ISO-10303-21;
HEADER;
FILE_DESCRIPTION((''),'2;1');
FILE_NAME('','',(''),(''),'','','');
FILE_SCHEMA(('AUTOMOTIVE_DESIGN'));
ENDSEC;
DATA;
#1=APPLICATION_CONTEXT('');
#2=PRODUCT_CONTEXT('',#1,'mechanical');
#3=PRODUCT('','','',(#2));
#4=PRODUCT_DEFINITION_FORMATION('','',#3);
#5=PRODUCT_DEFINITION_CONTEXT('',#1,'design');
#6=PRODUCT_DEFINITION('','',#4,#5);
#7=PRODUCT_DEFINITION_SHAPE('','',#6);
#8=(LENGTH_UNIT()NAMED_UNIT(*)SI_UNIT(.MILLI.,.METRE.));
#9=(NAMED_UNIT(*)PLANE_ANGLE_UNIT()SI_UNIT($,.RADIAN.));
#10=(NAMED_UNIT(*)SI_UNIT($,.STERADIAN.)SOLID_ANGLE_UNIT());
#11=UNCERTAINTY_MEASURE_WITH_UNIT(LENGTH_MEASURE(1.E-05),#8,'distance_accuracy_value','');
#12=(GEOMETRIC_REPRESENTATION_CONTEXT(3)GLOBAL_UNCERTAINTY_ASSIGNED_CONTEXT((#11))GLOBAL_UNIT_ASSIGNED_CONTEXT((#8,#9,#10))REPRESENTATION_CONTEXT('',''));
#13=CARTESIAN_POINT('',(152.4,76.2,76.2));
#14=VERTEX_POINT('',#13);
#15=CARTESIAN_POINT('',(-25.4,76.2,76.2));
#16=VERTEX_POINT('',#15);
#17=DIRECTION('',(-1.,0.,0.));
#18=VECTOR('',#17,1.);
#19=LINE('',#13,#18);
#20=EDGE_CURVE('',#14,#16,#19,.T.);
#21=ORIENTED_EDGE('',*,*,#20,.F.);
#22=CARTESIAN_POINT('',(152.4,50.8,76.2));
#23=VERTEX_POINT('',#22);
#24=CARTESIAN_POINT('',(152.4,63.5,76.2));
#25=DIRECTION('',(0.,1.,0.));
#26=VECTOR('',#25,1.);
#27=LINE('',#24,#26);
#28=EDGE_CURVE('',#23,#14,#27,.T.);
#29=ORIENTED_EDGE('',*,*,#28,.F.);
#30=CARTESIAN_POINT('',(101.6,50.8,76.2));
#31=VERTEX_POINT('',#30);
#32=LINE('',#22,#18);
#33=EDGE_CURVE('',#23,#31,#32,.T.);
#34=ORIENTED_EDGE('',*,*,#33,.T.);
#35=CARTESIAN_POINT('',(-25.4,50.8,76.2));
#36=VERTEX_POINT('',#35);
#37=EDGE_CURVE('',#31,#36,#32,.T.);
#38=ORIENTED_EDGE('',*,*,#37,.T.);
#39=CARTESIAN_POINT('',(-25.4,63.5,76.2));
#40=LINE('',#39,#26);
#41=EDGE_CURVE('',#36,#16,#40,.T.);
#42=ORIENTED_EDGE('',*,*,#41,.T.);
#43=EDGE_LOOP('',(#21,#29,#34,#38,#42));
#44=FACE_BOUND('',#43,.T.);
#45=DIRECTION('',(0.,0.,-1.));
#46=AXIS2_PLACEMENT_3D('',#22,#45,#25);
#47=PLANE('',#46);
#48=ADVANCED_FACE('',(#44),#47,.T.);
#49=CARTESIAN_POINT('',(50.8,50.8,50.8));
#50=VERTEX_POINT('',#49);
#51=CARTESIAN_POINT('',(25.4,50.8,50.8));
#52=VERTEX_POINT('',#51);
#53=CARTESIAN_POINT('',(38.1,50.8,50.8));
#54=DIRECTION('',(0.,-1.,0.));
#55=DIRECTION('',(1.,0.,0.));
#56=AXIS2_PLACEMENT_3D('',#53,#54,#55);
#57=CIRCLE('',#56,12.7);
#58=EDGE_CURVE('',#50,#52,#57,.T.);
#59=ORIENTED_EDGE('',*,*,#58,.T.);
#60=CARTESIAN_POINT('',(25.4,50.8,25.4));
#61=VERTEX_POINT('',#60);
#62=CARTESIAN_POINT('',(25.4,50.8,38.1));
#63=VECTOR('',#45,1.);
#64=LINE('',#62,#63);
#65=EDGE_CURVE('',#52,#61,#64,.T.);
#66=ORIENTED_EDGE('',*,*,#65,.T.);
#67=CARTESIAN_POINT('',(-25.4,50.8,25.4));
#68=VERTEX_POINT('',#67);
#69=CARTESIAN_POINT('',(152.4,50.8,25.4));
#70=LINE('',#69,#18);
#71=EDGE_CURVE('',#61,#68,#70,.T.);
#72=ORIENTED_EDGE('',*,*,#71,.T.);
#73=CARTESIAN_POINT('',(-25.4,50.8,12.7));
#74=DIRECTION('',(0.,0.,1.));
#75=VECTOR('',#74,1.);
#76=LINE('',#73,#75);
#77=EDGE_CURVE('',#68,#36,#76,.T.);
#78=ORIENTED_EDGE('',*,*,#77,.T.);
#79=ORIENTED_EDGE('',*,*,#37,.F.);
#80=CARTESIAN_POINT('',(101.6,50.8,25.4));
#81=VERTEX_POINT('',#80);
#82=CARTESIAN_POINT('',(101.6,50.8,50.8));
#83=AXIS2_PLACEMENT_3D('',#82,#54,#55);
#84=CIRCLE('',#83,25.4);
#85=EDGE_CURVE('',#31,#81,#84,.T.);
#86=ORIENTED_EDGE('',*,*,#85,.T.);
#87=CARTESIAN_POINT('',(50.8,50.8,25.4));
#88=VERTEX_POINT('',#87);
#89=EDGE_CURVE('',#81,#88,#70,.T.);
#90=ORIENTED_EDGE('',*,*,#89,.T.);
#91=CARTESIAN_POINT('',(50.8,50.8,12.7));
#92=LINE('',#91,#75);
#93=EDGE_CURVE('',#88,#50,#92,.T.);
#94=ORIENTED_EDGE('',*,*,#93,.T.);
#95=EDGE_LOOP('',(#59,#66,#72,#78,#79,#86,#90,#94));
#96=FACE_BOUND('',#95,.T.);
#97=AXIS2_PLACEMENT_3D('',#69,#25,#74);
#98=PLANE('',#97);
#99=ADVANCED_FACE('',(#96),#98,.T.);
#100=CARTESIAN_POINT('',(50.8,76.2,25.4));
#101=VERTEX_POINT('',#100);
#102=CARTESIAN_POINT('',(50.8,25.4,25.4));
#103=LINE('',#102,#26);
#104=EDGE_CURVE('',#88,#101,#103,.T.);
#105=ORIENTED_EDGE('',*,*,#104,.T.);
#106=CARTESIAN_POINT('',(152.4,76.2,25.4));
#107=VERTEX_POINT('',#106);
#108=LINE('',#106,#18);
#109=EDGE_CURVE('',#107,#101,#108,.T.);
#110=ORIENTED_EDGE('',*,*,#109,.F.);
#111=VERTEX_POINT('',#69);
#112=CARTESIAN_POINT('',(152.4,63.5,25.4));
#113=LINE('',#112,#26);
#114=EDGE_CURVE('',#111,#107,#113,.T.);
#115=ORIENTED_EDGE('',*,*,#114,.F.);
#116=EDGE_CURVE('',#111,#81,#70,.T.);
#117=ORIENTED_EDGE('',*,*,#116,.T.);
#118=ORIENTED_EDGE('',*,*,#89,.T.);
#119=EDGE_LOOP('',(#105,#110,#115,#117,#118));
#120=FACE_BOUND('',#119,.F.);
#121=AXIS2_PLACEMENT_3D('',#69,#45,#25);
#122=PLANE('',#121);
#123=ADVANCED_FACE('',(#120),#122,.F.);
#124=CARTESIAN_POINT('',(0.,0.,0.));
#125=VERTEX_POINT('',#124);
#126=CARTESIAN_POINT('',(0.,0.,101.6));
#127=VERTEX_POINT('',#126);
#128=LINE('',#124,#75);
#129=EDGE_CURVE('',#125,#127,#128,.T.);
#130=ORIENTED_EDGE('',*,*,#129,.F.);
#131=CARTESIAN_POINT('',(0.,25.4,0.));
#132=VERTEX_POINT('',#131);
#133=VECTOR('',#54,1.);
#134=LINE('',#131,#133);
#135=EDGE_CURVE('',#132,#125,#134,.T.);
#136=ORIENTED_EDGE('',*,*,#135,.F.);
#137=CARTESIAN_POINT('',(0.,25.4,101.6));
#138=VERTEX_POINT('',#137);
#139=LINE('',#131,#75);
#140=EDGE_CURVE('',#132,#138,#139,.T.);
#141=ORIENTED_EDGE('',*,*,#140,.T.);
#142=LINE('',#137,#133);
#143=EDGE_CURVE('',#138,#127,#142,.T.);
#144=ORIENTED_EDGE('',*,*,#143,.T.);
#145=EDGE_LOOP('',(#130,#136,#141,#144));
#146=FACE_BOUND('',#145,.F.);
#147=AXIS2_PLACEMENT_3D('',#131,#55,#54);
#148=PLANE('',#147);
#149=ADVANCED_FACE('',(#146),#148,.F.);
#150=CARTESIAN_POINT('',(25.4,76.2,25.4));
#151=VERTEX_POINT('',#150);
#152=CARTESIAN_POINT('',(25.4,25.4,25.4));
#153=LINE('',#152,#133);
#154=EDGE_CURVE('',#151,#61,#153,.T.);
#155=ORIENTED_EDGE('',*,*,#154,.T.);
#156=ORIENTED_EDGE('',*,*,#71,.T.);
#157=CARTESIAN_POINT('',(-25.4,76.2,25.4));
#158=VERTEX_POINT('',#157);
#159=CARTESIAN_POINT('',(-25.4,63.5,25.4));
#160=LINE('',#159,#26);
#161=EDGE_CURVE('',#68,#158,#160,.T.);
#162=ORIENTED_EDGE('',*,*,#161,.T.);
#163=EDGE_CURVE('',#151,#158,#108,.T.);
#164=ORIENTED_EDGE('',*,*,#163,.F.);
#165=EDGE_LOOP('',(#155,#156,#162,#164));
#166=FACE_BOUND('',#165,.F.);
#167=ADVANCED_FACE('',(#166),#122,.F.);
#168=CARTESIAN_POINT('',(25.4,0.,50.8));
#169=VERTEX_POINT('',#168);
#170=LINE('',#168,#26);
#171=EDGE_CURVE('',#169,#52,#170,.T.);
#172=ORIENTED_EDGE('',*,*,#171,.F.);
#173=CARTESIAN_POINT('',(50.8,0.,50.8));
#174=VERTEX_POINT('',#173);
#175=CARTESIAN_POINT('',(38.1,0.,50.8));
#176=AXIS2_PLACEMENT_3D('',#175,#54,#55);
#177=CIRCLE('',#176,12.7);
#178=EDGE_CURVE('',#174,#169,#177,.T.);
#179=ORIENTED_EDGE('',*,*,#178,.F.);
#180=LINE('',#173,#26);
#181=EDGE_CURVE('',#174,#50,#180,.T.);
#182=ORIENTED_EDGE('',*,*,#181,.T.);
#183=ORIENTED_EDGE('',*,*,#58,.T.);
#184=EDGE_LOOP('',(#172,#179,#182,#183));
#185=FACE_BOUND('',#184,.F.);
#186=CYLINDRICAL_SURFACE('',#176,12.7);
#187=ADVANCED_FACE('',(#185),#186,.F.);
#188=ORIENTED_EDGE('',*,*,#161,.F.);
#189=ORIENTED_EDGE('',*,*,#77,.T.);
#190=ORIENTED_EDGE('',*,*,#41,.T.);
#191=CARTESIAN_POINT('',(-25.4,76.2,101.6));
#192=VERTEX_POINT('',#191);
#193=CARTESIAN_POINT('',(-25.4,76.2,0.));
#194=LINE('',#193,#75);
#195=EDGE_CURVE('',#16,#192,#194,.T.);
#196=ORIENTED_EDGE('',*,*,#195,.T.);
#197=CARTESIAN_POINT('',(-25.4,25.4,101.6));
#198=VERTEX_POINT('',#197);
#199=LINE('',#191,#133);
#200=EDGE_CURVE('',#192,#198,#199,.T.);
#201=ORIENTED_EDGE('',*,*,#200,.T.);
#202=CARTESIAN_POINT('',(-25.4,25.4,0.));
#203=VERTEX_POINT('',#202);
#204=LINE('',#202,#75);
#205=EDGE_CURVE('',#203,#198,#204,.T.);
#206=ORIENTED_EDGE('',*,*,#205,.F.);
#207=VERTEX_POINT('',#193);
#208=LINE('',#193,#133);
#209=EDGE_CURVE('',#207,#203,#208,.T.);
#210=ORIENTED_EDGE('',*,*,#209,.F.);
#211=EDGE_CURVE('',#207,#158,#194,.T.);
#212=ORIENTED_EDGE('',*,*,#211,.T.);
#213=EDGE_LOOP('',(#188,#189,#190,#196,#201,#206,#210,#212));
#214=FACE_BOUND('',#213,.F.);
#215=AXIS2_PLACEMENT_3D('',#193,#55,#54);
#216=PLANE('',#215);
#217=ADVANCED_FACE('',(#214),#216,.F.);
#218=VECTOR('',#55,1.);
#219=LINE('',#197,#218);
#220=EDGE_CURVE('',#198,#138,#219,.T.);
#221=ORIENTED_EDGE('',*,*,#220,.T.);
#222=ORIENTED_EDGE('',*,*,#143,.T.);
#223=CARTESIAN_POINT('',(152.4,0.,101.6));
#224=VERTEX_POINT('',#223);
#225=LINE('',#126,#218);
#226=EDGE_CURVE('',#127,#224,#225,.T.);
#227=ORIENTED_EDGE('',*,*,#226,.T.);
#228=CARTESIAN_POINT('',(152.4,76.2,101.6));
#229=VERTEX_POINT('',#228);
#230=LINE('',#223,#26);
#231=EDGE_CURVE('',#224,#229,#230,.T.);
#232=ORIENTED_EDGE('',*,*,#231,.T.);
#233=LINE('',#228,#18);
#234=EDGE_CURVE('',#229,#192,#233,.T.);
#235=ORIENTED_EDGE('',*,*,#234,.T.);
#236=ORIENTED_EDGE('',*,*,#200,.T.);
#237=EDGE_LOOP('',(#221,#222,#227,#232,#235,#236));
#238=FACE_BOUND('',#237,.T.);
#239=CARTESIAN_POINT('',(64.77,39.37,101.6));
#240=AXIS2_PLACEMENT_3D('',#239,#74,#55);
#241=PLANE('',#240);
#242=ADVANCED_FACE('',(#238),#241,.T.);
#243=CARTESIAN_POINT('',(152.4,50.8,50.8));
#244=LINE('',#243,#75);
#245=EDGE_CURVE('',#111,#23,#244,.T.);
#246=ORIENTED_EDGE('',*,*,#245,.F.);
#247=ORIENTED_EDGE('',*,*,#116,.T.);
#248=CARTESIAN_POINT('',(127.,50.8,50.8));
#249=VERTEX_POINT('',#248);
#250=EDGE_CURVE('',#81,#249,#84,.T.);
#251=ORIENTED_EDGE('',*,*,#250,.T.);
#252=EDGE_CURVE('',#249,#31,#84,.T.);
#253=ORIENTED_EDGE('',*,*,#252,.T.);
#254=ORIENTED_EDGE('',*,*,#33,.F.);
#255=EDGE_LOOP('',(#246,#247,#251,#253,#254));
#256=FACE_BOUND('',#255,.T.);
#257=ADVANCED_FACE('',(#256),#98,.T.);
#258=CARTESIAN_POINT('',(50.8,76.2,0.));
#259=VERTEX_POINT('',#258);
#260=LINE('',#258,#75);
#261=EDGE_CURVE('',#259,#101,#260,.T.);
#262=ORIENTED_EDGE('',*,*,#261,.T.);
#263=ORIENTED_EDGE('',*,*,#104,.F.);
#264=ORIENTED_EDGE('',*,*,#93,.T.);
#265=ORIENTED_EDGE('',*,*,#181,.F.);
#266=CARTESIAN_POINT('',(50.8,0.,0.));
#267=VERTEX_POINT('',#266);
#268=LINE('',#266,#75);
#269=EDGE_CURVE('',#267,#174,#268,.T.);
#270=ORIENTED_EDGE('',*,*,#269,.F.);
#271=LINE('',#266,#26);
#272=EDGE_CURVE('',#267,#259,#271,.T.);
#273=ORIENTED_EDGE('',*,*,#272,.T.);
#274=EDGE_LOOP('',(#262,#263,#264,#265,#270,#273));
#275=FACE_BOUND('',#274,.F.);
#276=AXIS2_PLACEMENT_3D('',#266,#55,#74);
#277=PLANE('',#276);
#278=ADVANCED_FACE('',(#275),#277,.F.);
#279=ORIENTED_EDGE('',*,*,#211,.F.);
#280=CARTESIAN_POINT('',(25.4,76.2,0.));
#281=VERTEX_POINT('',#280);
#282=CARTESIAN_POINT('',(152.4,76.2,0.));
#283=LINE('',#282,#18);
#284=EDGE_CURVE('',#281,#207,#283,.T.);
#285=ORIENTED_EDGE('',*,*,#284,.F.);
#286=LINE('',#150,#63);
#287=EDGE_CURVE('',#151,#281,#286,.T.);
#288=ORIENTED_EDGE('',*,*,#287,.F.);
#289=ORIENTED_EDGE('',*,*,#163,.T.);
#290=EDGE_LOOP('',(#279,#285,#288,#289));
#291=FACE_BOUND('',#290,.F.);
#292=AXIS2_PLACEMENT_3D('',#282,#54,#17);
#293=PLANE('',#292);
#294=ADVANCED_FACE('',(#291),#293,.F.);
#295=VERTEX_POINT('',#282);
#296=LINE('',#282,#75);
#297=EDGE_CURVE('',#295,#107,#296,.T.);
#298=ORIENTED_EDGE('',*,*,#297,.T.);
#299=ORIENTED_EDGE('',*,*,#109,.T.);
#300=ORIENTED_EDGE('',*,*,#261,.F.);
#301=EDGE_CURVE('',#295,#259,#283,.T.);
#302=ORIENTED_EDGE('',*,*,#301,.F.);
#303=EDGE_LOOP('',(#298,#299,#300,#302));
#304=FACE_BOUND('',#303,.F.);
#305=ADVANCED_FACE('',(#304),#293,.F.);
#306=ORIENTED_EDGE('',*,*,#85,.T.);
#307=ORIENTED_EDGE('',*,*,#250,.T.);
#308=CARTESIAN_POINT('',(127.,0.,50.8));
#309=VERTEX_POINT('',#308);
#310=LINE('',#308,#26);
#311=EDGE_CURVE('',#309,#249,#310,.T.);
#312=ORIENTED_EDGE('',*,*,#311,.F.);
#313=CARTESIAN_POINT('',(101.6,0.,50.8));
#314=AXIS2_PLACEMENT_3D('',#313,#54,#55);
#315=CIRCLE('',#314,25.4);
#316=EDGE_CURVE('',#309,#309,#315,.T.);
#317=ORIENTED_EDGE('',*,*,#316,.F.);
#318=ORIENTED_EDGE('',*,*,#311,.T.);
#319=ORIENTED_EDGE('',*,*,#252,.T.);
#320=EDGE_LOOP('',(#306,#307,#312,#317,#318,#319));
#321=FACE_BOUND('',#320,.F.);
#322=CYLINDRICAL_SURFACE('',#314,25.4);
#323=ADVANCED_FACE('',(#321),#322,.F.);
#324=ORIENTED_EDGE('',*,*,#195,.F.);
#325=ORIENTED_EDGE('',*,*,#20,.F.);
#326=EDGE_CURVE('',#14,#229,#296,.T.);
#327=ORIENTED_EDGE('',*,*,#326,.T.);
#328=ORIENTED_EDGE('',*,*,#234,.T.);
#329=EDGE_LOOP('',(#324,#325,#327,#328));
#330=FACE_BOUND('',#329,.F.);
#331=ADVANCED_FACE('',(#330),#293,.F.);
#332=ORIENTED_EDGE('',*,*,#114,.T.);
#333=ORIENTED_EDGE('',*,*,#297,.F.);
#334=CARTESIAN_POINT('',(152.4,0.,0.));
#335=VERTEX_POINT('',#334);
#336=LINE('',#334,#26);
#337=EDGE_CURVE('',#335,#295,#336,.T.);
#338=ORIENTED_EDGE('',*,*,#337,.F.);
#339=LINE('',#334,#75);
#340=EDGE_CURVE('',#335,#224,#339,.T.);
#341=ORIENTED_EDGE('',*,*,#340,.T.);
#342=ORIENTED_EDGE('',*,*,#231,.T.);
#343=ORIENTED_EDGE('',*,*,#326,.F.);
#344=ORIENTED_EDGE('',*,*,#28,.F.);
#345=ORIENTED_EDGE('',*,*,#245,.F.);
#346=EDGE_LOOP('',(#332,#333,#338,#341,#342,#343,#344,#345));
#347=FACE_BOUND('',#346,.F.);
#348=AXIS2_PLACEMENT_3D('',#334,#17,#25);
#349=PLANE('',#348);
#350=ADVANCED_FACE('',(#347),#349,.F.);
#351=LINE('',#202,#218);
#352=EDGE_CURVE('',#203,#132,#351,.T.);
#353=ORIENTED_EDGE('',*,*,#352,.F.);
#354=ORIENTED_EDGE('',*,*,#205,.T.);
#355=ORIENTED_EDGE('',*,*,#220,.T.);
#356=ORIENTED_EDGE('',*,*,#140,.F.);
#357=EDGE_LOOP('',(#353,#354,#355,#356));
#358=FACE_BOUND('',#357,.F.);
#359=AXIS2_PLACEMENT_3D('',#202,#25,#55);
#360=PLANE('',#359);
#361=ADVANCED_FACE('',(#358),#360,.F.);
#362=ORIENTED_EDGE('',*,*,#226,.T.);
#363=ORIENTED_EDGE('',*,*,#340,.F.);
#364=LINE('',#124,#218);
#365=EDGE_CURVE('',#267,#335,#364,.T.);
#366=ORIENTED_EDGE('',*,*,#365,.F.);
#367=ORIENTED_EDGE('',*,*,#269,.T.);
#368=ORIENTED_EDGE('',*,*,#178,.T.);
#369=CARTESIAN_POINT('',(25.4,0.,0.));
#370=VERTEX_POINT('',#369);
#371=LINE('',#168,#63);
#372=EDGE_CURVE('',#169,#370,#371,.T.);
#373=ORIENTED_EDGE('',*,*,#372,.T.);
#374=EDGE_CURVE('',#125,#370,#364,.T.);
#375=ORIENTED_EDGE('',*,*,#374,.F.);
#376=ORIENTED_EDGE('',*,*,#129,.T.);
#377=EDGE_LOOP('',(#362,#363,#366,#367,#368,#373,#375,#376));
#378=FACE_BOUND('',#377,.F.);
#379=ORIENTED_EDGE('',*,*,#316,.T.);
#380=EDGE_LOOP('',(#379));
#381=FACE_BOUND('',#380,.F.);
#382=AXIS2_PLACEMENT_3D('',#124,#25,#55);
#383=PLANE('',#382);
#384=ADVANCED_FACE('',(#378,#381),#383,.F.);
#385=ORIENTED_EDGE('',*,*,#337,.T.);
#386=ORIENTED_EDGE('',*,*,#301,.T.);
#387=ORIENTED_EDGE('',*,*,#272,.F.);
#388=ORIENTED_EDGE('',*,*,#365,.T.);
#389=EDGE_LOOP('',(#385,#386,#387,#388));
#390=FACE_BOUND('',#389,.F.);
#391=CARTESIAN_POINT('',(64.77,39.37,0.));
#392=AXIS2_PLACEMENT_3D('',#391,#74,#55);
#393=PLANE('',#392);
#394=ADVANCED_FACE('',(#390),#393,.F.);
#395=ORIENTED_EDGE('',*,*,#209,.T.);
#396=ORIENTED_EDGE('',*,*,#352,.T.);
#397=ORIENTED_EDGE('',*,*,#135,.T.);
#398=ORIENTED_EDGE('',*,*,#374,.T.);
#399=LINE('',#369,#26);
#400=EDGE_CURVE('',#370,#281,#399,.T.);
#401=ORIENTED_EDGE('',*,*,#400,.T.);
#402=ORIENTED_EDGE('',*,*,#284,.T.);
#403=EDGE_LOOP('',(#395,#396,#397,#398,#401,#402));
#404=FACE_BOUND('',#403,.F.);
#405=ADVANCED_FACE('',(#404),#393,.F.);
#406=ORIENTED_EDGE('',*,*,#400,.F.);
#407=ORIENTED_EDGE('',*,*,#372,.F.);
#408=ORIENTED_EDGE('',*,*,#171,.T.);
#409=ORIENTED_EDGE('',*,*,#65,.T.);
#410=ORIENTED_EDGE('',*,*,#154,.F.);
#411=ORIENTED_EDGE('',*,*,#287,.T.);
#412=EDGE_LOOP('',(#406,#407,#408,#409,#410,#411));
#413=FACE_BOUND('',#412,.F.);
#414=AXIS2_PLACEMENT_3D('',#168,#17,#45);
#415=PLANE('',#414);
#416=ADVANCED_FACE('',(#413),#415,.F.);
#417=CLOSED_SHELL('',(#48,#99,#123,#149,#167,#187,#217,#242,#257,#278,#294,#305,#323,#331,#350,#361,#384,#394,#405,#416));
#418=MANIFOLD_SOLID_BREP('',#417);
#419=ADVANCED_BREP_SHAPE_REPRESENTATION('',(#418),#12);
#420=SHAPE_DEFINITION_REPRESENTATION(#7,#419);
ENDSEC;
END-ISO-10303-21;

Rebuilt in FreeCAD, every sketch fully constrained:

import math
import FreeCAD as App
import Part
import Sketcher
Q = App.Units.Quantity


def add_polygon(sketch, points):
    """Adds a closed chain of lines whose ends are joined by coincident constraints."""
    first, n = sketch.GeometryCount, len(points)
    for a, b in zip(points, points[1:] + points[:1]):
        sketch.addGeometry(Part.LineSegment(App.Vector(*a, 0), App.Vector(*b, 0)), False)
    for i in range(n):
        sketch.addConstraint(Sketcher.Constraint("Coincident", first + i, 2, first + (i + 1) % n, 1))

doc = App.newDocument("Part")
params = doc.addObject("Spreadsheet::Sheet", "Params")
for row, (alias, value) in enumerate([
    ("sketch1_width", "6 in"),
    ("sketch1_width2", "7 in"),
    ("sketch1_height", "3 in"),
    ("pad1_length", "4 in"),
    ("sketch2_diameter", "2 in"),
    ("sketch2_radius", "0.5 in"),
    ("sketch2_height", "2 in"),
    ("sketch3_width", "1 in"),
    ("sketch3_height", "2 in"),
], start=1):
    params.set(f"A{row}", alias)
    params.set(f"B{row}", "=" + value)
    params.setAlias(f"B{row}", alias)

body = doc.addObject("PartDesign::Body", "Body")

# Sketch on XY plane
sketch1 = doc.addObject("Sketcher::SketchObject", "Sketch")
body.addObject(sketch1)
sketch1.AttachmentSupport = (doc.XY_Plane, [""])
sketch1.MapMode = "FlatFace"
add_polygon(sketch1, [(0, 25.4), (0, 0), (152.4, 0), (152.4, 76.2), (-25.4, 76.2), (-25.4, 25.4)])  # lines 0-5
sketch1.addConstraint(Sketcher.Constraint("Vertical", 0))
sketch1.addConstraint(Sketcher.Constraint("Horizontal", 1))
sketch1.addConstraint(Sketcher.Constraint("Vertical", 2))
sketch1.addConstraint(Sketcher.Constraint("Horizontal", 3))
sketch1.addConstraint(Sketcher.Constraint("Vertical", 4))
sketch1.addConstraint(Sketcher.Constraint("Horizontal", 5))
sketch1.addConstraint(Sketcher.Constraint("Coincident", 0, 2, -1, 1))
sketch1.addConstraint(Sketcher.Constraint("Equal", 5, 0))
sketch1.addConstraint(Sketcher.Constraint("DistanceX", 1, 1, 1, 2, Q("6 in")))
sketch1.addConstraint(Sketcher.Constraint("DistanceX", 3, 2, 3, 1, Q("7 in")))
sketch1.addConstraint(Sketcher.Constraint("DistanceY", 2, 1, 2, 2, Q("3 in")))
sketch1.setExpression("Constraints[14]", "Params.sketch1_width")
sketch1.setExpression("Constraints[15]", "Params.sketch1_width2")
sketch1.setExpression("Constraints[16]", "Params.sketch1_height")
pad1 = doc.addObject("PartDesign::Pad", "Pad")
body.addObject(pad1)
pad1.Profile = sketch1
pad1.setExpression("Length", "Params.pad1_length")

# Sketch on XZ plane
sketch2 = doc.addObject("Sketcher::SketchObject", "Sketch001")
body.addObject(sketch2)
sketch2.AttachmentSupport = (doc.XZ_Plane, [""])
sketch2.MapMode = "FlatFace"
sketch2.addGeometry(Part.LineSegment(App.Vector(25.4, 50.8, 0), App.Vector(25.4, 0, 0)), False)
sketch2.addGeometry(Part.LineSegment(App.Vector(25.4, 0, 0), App.Vector(50.8, 0, 0)), False)
sketch2.addGeometry(Part.LineSegment(App.Vector(50.8, 0, 0), App.Vector(50.8, 50.8, 0)), False)
sketch2.addGeometry(Part.ArcOfCircle(Part.Circle(App.Vector(38.1, 50.8, 0), App.Vector(0, 0, 1), 12.7), math.radians(0), math.radians(180)), False)
sketch2.addGeometry(Part.Circle(App.Vector(101.6, 50.8, 0), App.Vector(0, 0, 1), 25.4), False)
sketch2.addConstraint(Sketcher.Constraint("Coincident", 0, 2, 1, 1))
sketch2.addConstraint(Sketcher.Constraint("Coincident", 1, 2, 2, 1))
sketch2.addConstraint(Sketcher.Constraint("Tangent", 2, 2, 3, 1))
sketch2.addConstraint(Sketcher.Constraint("Tangent", 3, 2, 0, 1))
sketch2.addConstraint(Sketcher.Constraint("Vertical", 0))
sketch2.addConstraint(Sketcher.Constraint("Horizontal", 1))
sketch2.addConstraint(Sketcher.Constraint("Vertical", 2))
sketch2.addConstraint(Sketcher.Constraint("PointOnObject", 0, 2, -1))
sketch2.addConstraint(Sketcher.Constraint("Horizontal", 3, 3, 4, 3))
sketch2.addConstraint(Sketcher.Constraint("Diameter", 4, Q("2 in")))
sketch2.addConstraint(Sketcher.Constraint("Radius", 3, Q("0.5 in")))
sketch2.addConstraint(Sketcher.Constraint("DistanceY", 0, 2, 0, 1, Q("2 in")))
sketch2.addConstraint(Sketcher.Constraint("DistanceX", -1, 1, 4, 3, Q("4 in")))
sketch2.addConstraint(Sketcher.Constraint("DistanceX", -1, 1, 0, 2, Q("1 in")))
sketch2.setExpression("Constraints[9]", "Params.sketch2_diameter")
sketch2.setExpression("Constraints[10]", "Params.sketch2_radius")
sketch2.setExpression("Constraints[11]", "Params.sketch2_height")
pocket1 = doc.addObject("PartDesign::Pocket", "Pocket")
body.addObject(pocket1)
pocket1.Profile = sketch2
pocket1.Type = "ThroughAll"

# Sketch on YZ plane
sketch3 = doc.addObject("Sketcher::SketchObject", "Sketch002")
body.addObject(sketch3)
sketch3.AttachmentSupport = (doc.YZ_Plane, [""])
sketch3.MapMode = "FlatFace"
sketch3.AttachmentOffset = App.Placement(App.Vector(0, 0, 6 * 25.4), App.Rotation())
add_polygon(sketch3, [(50.8, 76.2), (50.8, 25.4), (76.2, 25.4), (76.2, 76.2)])  # lines 0-3
sketch3.addConstraint(Sketcher.Constraint("Vertical", 0))
sketch3.addConstraint(Sketcher.Constraint("Horizontal", 1))
sketch3.addConstraint(Sketcher.Constraint("Vertical", 2))
sketch3.addConstraint(Sketcher.Constraint("Horizontal", 3))
sketch3.addConstraint(Sketcher.Constraint("DistanceX", 1, 1, 1, 2, Q("1 in")))
sketch3.addConstraint(Sketcher.Constraint("DistanceY", 0, 2, 0, 1, Q("2 in")))
sketch3.addConstraint(Sketcher.Constraint("DistanceX", -1, 1, 0, 2, Q("2 in")))
sketch3.addConstraint(Sketcher.Constraint("DistanceY", -1, 1, 0, 2, Q("1 in")))
sketch3.setExpression("Constraints[8]", "Params.sketch3_width")
sketch3.setExpression("Constraints[9]", "Params.sketch3_height")
pocket2 = doc.addObject("PartDesign::Pocket", "Pocket001")
body.addObject(pocket2)
pocket2.Profile = sketch3
pocket2.Type = "ThroughAll"

doc.recompute()
